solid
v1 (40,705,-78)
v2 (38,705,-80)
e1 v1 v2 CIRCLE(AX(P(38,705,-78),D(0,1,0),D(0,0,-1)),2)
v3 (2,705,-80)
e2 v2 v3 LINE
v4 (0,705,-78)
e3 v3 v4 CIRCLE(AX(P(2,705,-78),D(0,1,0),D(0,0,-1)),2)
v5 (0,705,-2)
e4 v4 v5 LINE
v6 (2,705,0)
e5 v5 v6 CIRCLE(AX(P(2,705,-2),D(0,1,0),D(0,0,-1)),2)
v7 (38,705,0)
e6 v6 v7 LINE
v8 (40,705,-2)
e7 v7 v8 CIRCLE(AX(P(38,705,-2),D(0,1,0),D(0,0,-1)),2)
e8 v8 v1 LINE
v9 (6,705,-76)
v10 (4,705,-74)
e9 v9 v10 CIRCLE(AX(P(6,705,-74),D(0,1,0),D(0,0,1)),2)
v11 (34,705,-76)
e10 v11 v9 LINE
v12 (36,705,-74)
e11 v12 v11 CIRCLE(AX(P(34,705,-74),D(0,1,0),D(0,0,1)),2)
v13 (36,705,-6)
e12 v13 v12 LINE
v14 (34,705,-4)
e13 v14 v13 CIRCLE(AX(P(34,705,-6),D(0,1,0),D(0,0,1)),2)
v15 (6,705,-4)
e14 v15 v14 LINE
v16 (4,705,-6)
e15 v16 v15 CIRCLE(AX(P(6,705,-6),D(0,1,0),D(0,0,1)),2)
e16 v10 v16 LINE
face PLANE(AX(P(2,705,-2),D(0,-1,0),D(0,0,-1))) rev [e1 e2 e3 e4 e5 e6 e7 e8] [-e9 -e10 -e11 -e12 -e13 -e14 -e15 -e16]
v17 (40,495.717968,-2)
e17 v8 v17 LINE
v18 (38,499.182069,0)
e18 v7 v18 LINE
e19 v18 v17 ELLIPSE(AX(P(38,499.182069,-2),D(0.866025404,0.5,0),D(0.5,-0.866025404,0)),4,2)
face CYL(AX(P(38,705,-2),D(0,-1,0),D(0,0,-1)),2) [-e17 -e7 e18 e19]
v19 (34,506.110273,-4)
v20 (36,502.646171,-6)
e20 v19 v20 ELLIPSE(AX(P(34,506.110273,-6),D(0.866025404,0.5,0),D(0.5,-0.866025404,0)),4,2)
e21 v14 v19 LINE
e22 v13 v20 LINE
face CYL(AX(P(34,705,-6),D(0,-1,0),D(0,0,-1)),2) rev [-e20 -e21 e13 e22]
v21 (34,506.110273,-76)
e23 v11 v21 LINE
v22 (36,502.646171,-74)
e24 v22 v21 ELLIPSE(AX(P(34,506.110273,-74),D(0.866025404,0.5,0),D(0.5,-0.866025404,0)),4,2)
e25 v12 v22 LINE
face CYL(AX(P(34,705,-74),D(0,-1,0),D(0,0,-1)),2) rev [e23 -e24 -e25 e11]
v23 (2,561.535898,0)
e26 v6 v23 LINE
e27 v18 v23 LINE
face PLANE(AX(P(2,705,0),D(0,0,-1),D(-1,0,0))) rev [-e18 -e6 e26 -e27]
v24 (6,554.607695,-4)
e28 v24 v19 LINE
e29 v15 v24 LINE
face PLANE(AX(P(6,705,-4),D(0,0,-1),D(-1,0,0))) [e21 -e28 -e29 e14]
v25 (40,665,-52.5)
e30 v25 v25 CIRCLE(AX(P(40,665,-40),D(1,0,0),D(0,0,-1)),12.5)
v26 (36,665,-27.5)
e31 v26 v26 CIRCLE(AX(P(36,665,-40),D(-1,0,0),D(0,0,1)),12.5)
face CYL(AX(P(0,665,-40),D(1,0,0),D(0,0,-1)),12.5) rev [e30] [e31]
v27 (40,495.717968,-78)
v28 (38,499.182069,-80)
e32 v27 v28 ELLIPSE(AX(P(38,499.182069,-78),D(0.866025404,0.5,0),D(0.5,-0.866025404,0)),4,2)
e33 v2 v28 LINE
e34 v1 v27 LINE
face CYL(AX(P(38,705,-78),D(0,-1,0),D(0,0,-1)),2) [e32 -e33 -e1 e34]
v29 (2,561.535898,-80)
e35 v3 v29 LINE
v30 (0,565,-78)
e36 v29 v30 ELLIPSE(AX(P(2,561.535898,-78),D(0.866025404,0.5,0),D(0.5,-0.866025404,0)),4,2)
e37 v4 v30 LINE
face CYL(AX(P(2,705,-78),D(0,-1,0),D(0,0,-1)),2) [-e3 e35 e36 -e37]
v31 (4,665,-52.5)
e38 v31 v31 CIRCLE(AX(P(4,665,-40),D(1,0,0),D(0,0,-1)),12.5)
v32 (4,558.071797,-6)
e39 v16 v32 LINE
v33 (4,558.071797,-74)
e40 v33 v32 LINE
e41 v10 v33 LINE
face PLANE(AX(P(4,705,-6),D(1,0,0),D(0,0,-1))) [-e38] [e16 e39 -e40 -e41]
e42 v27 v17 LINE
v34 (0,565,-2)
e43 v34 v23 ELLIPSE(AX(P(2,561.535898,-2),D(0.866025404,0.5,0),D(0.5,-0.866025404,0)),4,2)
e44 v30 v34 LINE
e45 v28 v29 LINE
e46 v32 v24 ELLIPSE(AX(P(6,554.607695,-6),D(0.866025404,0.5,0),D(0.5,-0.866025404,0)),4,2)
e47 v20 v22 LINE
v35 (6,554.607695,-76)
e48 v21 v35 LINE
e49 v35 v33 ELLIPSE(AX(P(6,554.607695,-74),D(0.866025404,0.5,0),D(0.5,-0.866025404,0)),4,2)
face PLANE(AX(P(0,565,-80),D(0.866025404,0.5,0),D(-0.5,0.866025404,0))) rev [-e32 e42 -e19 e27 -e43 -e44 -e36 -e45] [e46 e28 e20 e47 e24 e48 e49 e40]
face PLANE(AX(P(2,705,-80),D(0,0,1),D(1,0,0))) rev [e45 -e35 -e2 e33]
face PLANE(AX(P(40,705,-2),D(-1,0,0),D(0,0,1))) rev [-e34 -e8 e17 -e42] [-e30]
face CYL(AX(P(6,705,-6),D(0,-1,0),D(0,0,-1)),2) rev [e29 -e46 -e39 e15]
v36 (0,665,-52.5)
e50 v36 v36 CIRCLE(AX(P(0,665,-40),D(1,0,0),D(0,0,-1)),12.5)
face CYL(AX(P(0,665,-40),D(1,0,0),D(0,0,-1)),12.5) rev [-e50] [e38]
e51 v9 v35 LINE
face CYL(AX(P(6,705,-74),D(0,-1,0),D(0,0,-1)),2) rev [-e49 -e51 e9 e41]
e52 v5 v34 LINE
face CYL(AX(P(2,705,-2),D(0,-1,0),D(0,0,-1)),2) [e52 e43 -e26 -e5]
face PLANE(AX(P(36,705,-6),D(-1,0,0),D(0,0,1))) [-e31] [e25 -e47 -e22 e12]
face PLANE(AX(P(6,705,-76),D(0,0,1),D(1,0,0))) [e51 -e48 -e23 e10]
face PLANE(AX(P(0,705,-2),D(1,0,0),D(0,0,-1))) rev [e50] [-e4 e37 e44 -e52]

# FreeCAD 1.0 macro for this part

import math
import FreeCAD as App
import Part
import Sketcher

V = App.Vector
Q = App.Units.Quantity

doc = App.newDocument("Part")
body = doc.addObject("PartDesign::Body", "Body")

# Sketch on XZ plane
sketch1 = body.newObject("Sketcher::SketchObject", "Sketch")
sketch1.AttachmentSupport = (doc.getObject("XZ_Plane"), [""])
sketch1.MapMode = "FlatFace"
sketch1.addGeometry([
    Part.LineSegment(V(2, 0, 0), V(38, 0, 0)),  # 0
    Part.ArcOfCircle(Part.Circle(V(38, -2, 0), V(0, 0, 1), 2), math.radians(0), math.radians(90)),  # 1
    Part.LineSegment(V(40, -2, 0), V(40, -78, 0)),  # 2
    Part.ArcOfCircle(Part.Circle(V(38, -78, 0), V(0, 0, 1), 2), math.radians(-90), math.radians(0)),  # 3
    Part.LineSegment(V(38, -80, 0), V(2, -80, 0)),  # 4
    Part.ArcOfCircle(Part.Circle(V(2, -78, 0), V(0, 0, 1), 2), math.radians(-180), math.radians(-90)),  # 5
    Part.LineSegment(V(0, -78, 0), V(0, -2, 0)),  # 6
    Part.ArcOfCircle(Part.Circle(V(2, -2, 0), V(0, 0, 1), 2), math.radians(90), math.radians(180)),  # 7
    Part.LineSegment(V(34, -4, 0), V(6, -4, 0)),  # 8
    Part.ArcOfCircle(Part.Circle(V(6, -6, 0), V(0, 0, 1), 2), math.radians(90), math.radians(180)),  # 9
    Part.LineSegment(V(4, -6, 0), V(4, -74, 0)),  # 10
    Part.ArcOfCircle(Part.Circle(V(6, -74, 0), V(0, 0, 1), 2), math.radians(-180), math.radians(-90)),  # 11
    Part.LineSegment(V(6, -76, 0), V(34, -76, 0)),  # 12
    Part.ArcOfCircle(Part.Circle(V(34, -74, 0), V(0, 0, 1), 2), math.radians(-90), math.radians(0)),  # 13
    Part.LineSegment(V(36, -74, 0), V(36, -6, 0)),  # 14
    Part.ArcOfCircle(Part.Circle(V(34, -6, 0), V(0, 0, 1), 2), math.radians(0), math.radians(90)),  # 15
], False)
sketch1.addConstraint([
    Sketcher.Constraint("Tangent", 0, 2, 1, 2),
    Sketcher.Constraint("Tangent", 1, 1, 2, 1),
    Sketcher.Constraint("Tangent", 2, 2, 3, 2),
    Sketcher.Constraint("Tangent", 3, 1, 4, 1),
    Sketcher.Constraint("Tangent", 4, 2, 5, 2),
    Sketcher.Constraint("Tangent", 5, 1, 6, 1),
    Sketcher.Constraint("Tangent", 6, 2, 7, 2),
    Sketcher.Constraint("Tangent", 7, 1, 0, 1),
    Sketcher.Constraint("Tangent", 8, 2, 9, 1),
    Sketcher.Constraint("Tangent", 9, 2, 10, 1),
    Sketcher.Constraint("Tangent", 10, 2, 11, 1),
    Sketcher.Constraint("Tangent", 11, 2, 12, 1),
    Sketcher.Constraint("Tangent", 12, 2, 13, 1),
    Sketcher.Constraint("Tangent", 13, 2, 14, 1),
    Sketcher.Constraint("Tangent", 14, 2, 15, 1),
    Sketcher.Constraint("Tangent", 15, 2, 8, 1),
    Sketcher.Constraint("Horizontal", 0),
    Sketcher.Constraint("Vertical", 2),
    Sketcher.Constraint("Horizontal", 4),
    Sketcher.Constraint("Vertical", 6),
    Sketcher.Constraint("Horizontal", 8),
    Sketcher.Constraint("Vertical", 10),
    Sketcher.Constraint("Horizontal", 12),
    Sketcher.Constraint("Vertical", 14),
    Sketcher.Constraint("Equal", 1, 3),
    Sketcher.Constraint("Equal", 3, 5),
    Sketcher.Constraint("Equal", 5, 7),
    Sketcher.Constraint("Equal", 7, 9),
    Sketcher.Constraint("Equal", 9, 11),
    Sketcher.Constraint("Equal", 11, 13),
    Sketcher.Constraint("Equal", 13, 15),
    Sketcher.Constraint("PointOnObject", 0, 2, -1),
    Sketcher.Constraint("PointOnObject", 5, 1, -2),
    Sketcher.Constraint("Radius", 1, Q("2 mm")),
    Sketcher.Constraint("DistanceX", 0, 1, 0, 2, Q("36 mm")),
    Sketcher.Constraint("DistanceX", 8, 2, 8, 1, Q("28 mm")),
    Sketcher.Constraint("DistanceY", 2, 2, 2, 1, Q("76 mm")),
    Sketcher.Constraint("DistanceY", 10, 2, 10, 1, Q("68 mm")),
    Sketcher.Constraint("DistanceX", -1, 1, 9, 3, Q("6 mm")),
    Sketcher.Constraint("DistanceY", 9, 3, -1, 1, Q("6 mm")),
])
pad1 = body.newObject("PartDesign::Pad", "Pad")
pad1.Profile = sketch1
pad1.Length = 705
pad1.Reversed = True

# Sketch on YZ plane
sketch2 = body.newObject("Sketcher::SketchObject", "Sketch001")
sketch2.AttachmentSupport = (doc.getObject("YZ_Plane"), [""])
sketch2.MapMode = "FlatFace"
sketch2.AttachmentOffset = App.Placement(V(0, 0, 40), App.Rotation())
sketch2.addGeometry([
    Part.Circle(V(90, -40, 0), V(0, 0, 1), 10),
    Part.Circle(V(665, -40, 0), V(0, 0, 1), 12),
], False)
sketch2.addConstraint([
    Sketcher.Constraint("Horizontal", 0, 3, 1, 3),
    Sketcher.Constraint("Diameter", 1, Q("25 mm")),
    Sketcher.Constraint("Diameter", 0, Q("20.25 mm")),
    Sketcher.Constraint("DistanceX", -1, 1, 0, 3, Q("90 mm")),
    Sketcher.Constraint("DistanceY", 0, 3, -1, 1, Q("40 mm")),
    Sketcher.Constraint("DistanceX", -1, 1, 1, 3, Q("665 mm")),
])
pocket1 = body.newObject("PartDesign::Pocket", "Pocket")
pocket1.Profile = sketch2
pocket1.Type = "ThroughAll"

# Sketch on XY plane
sketch3 = body.newObject("Sketcher::SketchObject", "Sketch002")
sketch3.AttachmentSupport = (doc.getObject("XY_Plane"), [""])
sketch3.MapMode = "FlatFace"
sketch3.addGeometry([
    Part.LineSegment(V(40, 496, 0), V(0, 565, 0)),
    Part.LineSegment(V(0, 565, 0), V(0, 0, 0)),
    Part.LineSegment(V(0, 0, 0), V(40, 0, 0)),
    Part.LineSegment(V(40, 0, 0), V(40, 496, 0)),
], False)
sketch3.addConstraint([
    Sketcher.Constraint("Coincident", 0, 2, 1, 1),
    Sketcher.Constraint("Coincident", 1, 2, 2, 1),
    Sketcher.Constraint("Coincident", 2, 2, 3, 1),
    Sketcher.Constraint("Coincident", 3, 2, 0, 1),
    Sketcher.Constraint("Vertical", 1),
    Sketcher.Constraint("Horizontal", 2),
    Sketcher.Constraint("Vertical", 3),
    Sketcher.Constraint("Coincident", 1, 2, -1, 1),
    Sketcher.Constraint("DistanceX", 2, 1, 2, 2, Q("40 mm")),
    Sketcher.Constraint("DistanceY", 1, 2, 1, 1, Q("565 mm")),
    Sketcher.Constraint("Angle", 0, Q("120 deg")),
])
pocket2 = body.newObject("PartDesign::Pocket", "Pocket001")
pocket2.Profile = sketch3
pocket2.Type = "ThroughAll"

doc.recompute()
